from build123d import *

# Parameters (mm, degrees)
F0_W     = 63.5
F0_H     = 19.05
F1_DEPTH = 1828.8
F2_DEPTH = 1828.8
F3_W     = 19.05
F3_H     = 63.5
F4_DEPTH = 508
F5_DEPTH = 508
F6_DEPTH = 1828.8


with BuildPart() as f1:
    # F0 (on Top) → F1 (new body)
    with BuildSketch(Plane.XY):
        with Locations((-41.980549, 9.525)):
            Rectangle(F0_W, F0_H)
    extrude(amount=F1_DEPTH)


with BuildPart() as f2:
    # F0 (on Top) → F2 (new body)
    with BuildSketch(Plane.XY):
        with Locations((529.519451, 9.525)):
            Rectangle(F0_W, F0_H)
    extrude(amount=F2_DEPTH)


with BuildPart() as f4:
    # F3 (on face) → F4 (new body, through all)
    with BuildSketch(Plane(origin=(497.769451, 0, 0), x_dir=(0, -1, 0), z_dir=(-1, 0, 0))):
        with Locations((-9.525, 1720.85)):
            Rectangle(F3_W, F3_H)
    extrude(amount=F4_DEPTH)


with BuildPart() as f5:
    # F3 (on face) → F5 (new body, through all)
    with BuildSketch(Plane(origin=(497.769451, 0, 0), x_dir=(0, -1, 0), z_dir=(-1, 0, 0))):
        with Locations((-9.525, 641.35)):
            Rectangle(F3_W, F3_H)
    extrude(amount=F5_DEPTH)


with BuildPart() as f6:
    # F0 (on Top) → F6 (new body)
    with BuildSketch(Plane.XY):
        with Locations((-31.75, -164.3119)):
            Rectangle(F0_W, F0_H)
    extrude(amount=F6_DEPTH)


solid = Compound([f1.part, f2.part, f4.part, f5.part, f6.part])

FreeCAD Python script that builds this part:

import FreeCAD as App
import Part
import Sketcher

V = App.Vector
Q = App.Units.Quantity


def add_polygon(sketch, points):
    """Adds a closed chain of lines whose ends are joined by coincident constraints."""
    first, n = sketch.GeometryCount, len(points)
    for a, b in zip(points, points[1:] + points[:1]):
        sketch.addGeometry(Part.LineSegment(App.Vector(*a, 0), App.Vector(*b, 0)), False)
    for i in range(n):
        sketch.addConstraint(Sketcher.Constraint("Coincident", first + i, 2, first + (i + 1) % n, 1))

doc = App.newDocument("Part")
body = doc.addObject("PartDesign::Body", "Body")

# Sketch on XY plane
sketch1 = body.newObject("Sketcher::SketchObject", "Sketch")
sketch1.AttachmentSupport = (doc.getObject("XY_Plane"), [""])
sketch1.MapMode = "FlatFace"
add_polygon(sketch1, [(-74, 19), (-74, 0), (-10, 0), (-10, 19)])  # lines 0-3
sketch1.addConstraint(Sketcher.Constraint("Vertical", 0))
sketch1.addConstraint(Sketcher.Constraint("Horizontal", 1))
sketch1.addConstraint(Sketcher.Constraint("Vertical", 2))
sketch1.addConstraint(Sketcher.Constraint("Horizontal", 3))
sketch1.addConstraint(Sketcher.Constraint("PointOnObject", 0, 2, -1))
sketch1.addConstraint(Sketcher.Constraint("DistanceX", 1, 1, 1, 2, Q("2.5 in")))
sketch1.addConstraint(Sketcher.Constraint("DistanceY", 0, 2, 0, 1, Q("0.75 in")))
sketch1.addConstraint(Sketcher.Constraint("DistanceX", 0, 2, -1, 1, 73.730549))
pad1 = body.newObject("PartDesign::Pad", "Pad")
pad1.Profile = sketch1
pad1.Length = Q("72 in")
body2 = doc.addObject("PartDesign::Body", "Body001")

# Sketch on XY plane
sketch2 = body2.newObject("Sketcher::SketchObject", "Sketch001")
sketch2.AttachmentSupport = (doc.getObject("XY_Plane001"), [""])
sketch2.MapMode = "FlatFace"
add_polygon(sketch2, [(498, 19), (498, 0), (561, 0), (561, 19)])  # lines 0-3
sketch2.addConstraint(Sketcher.Constraint("Vertical", 0))
sketch2.addConstraint(Sketcher.Constraint("Horizontal", 1))
sketch2.addConstraint(Sketcher.Constraint("Vertical", 2))
sketch2.addConstraint(Sketcher.Constraint("Horizontal", 3))
sketch2.addConstraint(Sketcher.Constraint("PointOnObject", 0, 2, -1))
sketch2.addConstraint(Sketcher.Constraint("DistanceX", 1, 1, 1, 2, Q("2.5 in")))
sketch2.addConstraint(Sketcher.Constraint("DistanceY", 0, 2, 0, 1, Q("0.75 in")))
sketch2.addConstraint(Sketcher.Constraint("DistanceX", -1, 1, 0, 2, 497.769451))
pad2 = body2.newObject("PartDesign::Pad", "Pad001")
pad2.Profile = sketch2
pad2.Length = Q("72 in")
body3 = doc.addObject("PartDesign::Body", "Body002")

# Sketch on YZ plane
sketch3 = body3.newObject("Sketcher::SketchObject", "Sketch002")
sketch3.AttachmentSupport = (doc.getObject("YZ_Plane002"), [""])
sketch3.MapMode = "FlatFace"
sketch3.AttachmentOffset = App.Placement(V(0, 0, 497.769451), App.Rotation())
add_polygon(sketch3, [(19, 1753), (19, 1689), (0, 1689), (0, 1753)])  # lines 0-3
sketch3.addConstraint(Sketcher.Constraint("Vertical", 0))
sketch3.addConstraint(Sketcher.Constraint("Horizontal", 1))
sketch3.addConstraint(Sketcher.Constraint("Vertical", 2))
sketch3.addConstraint(Sketcher.Constraint("Horizontal", 3))
sketch3.addConstraint(Sketcher.Constraint("PointOnObject", 1, 2, -2))
sketch3.addConstraint(Sketcher.Constraint("DistanceY", 0, 2, 0, 1, Q("2.5 in")))
sketch3.addConstraint(Sketcher.Constraint("DistanceY", -1, 1, 2, 2, Q("69 in")))
sketch3.addConstraint(Sketcher.Constraint("DistanceX", 1, 2, 1, 1, Q("0.75 in")))
pad3 = body3.newObject("PartDesign::Pad", "Pad002")
pad3.Profile = sketch3
pad3.Length = Q("20 in")
pad3.Reversed = True
body4 = doc.addObject("PartDesign::Body", "Body003")

# Sketch on YZ plane
sketch4 = body4.newObject("Sketcher::SketchObject", "Sketch003")
sketch4.AttachmentSupport = (doc.getObject("YZ_Plane003"), [""])
sketch4.MapMode = "FlatFace"
sketch4.AttachmentOffset = App.Placement(V(0, 0, 497.769451), App.Rotation())
add_polygon(sketch4, [(19, 673), (19, 610), (0, 610), (0, 673)])  # lines 0-3
sketch4.addConstraint(Sketcher.Constraint("Vertical", 0))
sketch4.addConstraint(Sketcher.Constraint("Horizontal", 1))
sketch4.addConstraint(Sketcher.Constraint("Vertical", 2))
sketch4.addConstraint(Sketcher.Constraint("Horizontal", 3))
sketch4.addConstraint(Sketcher.Constraint("PointOnObject", 1, 2, -2))
sketch4.addConstraint(Sketcher.Constraint("DistanceY", 0, 2, 0, 1, Q("2.5 in")))
sketch4.addConstraint(Sketcher.Constraint("DistanceY", -1, 1, 0, 2, Q("24 in")))
sketch4.addConstraint(Sketcher.Constraint("DistanceX", 1, 2, 1, 1, Q("0.75 in")))
pad4 = body4.newObject("PartDesign::Pad", "Pad003")
pad4.Profile = sketch4
pad4.Length = Q("20 in")
pad4.Reversed = True
body5 = doc.addObject("PartDesign::Body", "Body004")

# Sketch on XY plane
sketch5 = body5.newObject("Sketcher::SketchObject", "Sketch004")
sketch5.AttachmentSupport = (doc.getObject("XY_Plane004"), [""])
sketch5.MapMode = "FlatFace"
add_polygon(sketch5, [(-64, -155), (-64, -174), (0, -174), (0, -155)])  # lines 0-3
sketch5.addConstraint(Sketcher.Constraint("Vertical", 0))
sketch5.addConstraint(Sketcher.Constraint("Horizontal", 1))
sketch5.addConstraint(Sketcher.Constraint("Vertical", 2))
sketch5.addConstraint(Sketcher.Constraint("Horizontal", 3))
sketch5.addConstraint(Sketcher.Constraint("PointOnObject", 1, 2, -2))
sketch5.addConstraint(Sketcher.Constraint("DistanceX", 1, 1, 1, 2, Q("2.5 in")))
sketch5.addConstraint(Sketcher.Constraint("DistanceY", 0, 2, 0, 1, Q("0.75 in")))
sketch5.addConstraint(Sketcher.Constraint("DistanceY", 0, 2, -1, 1, 173.8369))
pad5 = body5.newObject("PartDesign::Pad", "Pad004")
pad5.Profile = sketch5
pad5.Length = Q("72 in")

doc.recompute()
